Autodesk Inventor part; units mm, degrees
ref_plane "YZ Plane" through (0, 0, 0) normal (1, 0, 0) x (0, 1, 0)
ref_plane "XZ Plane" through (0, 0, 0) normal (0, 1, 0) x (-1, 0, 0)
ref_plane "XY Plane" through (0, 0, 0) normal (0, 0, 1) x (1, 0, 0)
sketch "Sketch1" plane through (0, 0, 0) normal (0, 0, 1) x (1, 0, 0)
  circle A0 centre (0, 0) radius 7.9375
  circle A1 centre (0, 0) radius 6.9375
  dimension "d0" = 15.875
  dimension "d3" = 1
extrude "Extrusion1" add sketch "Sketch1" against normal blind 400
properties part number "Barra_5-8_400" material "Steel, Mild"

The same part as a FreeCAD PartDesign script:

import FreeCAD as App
import Part
import Sketcher

V = App.Vector

doc = App.newDocument("Part")
params = doc.addObject("Spreadsheet::Sheet", "Params")
for row, (alias, value) in enumerate([
    ("pad1_length", "400 mm"),
], start=1):
    params.set(f"A{row}", alias)
    params.set(f"B{row}", "=" + value)
    params.setAlias(f"B{row}", alias)

body = doc.addObject("PartDesign::Body", "Body")

sketch1 = doc.addObject("Sketcher::SketchObject", "Sketch")
body.addObject(sketch1)
sketch1.AttachmentSupport = (doc.XY_Plane, [""])
sketch1.MapMode = "FlatFace"
sketch1.addGeometry([
    Part.Circle(V(0, 0, 0), V(0, 0, 1), 8),
    Part.Circle(V(0, 0, 0), V(0, 0, 1), 7),
], False)
sketch1.addConstraint([
    Sketcher.Constraint("Coincident", 0, 3, -1, 1),
    Sketcher.Constraint("Coincident", 1, 3, -1, 1),
    Sketcher.Constraint("Diameter", 0, 15.875),
    Sketcher.Constraint("Diameter", 1, 13.875),
])
pad1 = doc.addObject("PartDesign::Pad", "Pad")
body.addObject(pad1)
pad1.Profile = sketch1
pad1.setExpression("Length", "Params.pad1_length")
pad1.Reversed = True

doc.recompute()
